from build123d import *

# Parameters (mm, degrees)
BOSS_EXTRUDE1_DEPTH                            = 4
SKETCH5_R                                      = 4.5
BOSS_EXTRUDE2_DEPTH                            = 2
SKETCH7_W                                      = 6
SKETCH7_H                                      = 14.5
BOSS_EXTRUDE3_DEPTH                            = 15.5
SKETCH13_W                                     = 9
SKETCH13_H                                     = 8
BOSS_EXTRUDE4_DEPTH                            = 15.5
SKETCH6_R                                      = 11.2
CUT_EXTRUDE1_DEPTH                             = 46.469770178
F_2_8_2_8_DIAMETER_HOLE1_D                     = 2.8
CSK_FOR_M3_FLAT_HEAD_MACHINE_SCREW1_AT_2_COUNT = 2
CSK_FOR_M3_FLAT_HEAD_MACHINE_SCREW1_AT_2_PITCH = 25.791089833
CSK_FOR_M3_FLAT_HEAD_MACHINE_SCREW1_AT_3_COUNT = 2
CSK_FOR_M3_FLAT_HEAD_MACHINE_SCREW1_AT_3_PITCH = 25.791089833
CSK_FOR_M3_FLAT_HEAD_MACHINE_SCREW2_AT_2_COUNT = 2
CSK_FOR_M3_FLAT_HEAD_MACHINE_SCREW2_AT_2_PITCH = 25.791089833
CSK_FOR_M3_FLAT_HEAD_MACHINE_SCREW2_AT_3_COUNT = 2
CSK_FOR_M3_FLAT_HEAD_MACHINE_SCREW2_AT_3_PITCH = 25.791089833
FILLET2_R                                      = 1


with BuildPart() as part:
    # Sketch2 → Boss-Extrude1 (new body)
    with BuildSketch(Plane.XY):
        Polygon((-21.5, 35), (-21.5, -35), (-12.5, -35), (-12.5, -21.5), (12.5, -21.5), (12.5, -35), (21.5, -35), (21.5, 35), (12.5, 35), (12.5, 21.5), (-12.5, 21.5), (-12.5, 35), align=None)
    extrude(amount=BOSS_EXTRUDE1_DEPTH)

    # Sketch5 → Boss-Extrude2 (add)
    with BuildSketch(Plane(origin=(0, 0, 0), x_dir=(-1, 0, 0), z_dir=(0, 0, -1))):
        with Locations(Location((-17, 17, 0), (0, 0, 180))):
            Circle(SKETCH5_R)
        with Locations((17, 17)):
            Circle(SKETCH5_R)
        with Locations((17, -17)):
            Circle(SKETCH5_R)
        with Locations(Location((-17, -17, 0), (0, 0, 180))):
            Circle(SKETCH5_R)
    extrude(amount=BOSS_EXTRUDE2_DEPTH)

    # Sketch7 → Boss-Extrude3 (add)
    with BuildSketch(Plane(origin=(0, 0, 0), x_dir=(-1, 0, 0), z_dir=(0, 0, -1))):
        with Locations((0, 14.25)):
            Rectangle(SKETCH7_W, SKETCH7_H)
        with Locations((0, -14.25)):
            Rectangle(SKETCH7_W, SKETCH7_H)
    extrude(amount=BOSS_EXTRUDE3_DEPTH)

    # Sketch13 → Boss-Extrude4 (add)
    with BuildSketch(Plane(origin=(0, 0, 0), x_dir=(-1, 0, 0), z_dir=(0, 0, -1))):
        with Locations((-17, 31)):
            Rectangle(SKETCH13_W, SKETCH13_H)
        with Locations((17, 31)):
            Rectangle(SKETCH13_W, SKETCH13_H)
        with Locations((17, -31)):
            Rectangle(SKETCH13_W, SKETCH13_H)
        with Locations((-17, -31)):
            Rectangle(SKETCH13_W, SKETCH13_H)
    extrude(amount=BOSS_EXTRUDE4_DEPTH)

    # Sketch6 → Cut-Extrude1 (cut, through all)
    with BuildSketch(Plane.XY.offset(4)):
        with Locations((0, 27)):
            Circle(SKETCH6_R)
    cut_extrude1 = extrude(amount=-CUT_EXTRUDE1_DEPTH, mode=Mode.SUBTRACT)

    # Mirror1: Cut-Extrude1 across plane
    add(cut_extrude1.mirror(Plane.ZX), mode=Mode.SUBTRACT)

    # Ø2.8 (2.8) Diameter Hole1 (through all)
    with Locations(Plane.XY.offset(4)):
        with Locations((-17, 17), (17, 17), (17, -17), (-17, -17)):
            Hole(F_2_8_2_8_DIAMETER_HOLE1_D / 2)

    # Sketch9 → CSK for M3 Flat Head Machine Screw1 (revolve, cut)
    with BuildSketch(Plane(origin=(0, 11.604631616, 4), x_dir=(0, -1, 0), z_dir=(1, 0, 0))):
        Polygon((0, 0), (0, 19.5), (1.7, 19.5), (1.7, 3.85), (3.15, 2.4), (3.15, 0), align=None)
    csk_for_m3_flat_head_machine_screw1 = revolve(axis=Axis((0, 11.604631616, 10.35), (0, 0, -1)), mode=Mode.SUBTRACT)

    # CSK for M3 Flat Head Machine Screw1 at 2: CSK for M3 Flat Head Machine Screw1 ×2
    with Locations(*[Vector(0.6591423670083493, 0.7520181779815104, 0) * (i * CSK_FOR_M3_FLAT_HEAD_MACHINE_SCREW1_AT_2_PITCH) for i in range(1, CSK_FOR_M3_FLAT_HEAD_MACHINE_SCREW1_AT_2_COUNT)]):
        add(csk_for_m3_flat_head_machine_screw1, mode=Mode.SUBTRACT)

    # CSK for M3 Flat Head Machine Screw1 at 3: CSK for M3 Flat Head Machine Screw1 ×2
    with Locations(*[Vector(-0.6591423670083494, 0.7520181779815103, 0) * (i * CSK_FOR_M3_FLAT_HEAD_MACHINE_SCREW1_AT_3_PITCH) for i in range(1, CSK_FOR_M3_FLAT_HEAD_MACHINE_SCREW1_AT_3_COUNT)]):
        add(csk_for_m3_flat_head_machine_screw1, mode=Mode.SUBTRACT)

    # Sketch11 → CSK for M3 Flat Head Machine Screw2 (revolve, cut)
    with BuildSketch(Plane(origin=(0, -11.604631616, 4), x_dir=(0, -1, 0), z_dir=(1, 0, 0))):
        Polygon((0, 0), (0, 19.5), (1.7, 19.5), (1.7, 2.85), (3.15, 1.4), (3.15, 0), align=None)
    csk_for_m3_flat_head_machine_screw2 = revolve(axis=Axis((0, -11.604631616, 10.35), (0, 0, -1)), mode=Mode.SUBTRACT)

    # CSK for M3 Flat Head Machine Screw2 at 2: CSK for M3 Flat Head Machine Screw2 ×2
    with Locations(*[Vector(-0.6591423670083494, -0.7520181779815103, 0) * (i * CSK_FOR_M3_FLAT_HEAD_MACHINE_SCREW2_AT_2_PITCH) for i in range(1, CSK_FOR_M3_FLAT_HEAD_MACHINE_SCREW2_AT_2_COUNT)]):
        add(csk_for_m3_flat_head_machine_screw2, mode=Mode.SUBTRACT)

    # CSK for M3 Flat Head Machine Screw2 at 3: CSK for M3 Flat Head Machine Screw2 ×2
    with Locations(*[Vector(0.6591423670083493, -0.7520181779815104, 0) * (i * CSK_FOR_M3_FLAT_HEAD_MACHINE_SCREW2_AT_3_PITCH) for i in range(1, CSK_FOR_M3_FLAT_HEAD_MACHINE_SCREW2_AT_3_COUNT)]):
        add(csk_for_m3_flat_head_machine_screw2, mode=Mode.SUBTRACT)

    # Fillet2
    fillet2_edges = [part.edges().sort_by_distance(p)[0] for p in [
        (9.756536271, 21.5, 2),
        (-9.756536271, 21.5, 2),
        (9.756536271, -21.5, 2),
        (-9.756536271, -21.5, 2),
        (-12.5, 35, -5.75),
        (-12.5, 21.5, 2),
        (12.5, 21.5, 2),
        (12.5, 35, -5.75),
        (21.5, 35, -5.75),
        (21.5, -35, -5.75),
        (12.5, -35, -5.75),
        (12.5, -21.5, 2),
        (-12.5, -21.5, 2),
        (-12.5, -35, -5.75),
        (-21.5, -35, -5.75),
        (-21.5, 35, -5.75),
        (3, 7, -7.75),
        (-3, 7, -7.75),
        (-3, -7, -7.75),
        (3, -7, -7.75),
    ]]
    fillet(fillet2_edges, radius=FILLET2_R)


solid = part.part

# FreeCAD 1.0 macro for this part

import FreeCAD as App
import Part
import Sketcher
Q = App.Units.Quantity


def edges_at(feature, points):
    """Names of the edges that pass closest to the given points."""
    edges = feature.Shape.Edges
    near = lambda p: min(range(len(edges)), key=lambda i: edges[i].distToShape(Part.Vertex(*p))[0])
    return sorted({f"Edge{near(p) + 1}" for p in points})


def add_polygon(sketch, points):
    """Adds a closed chain of lines whose ends are joined by coincident constraints."""
    first, n = sketch.GeometryCount, len(points)
    for a, b in zip(points, points[1:] + points[:1]):
        sketch.addGeometry(Part.LineSegment(App.Vector(*a, 0), App.Vector(*b, 0)), False)
    for i in range(n):
        sketch.addConstraint(Sketcher.Constraint("Coincident", first + i, 2, first + (i + 1) % n, 1))

doc = App.newDocument("Part")
body = doc.addObject("PartDesign::Body", "Body")

sketch1 = doc.addObject("Sketcher::SketchObject", "Sketch")
body.addObject(sketch1)
sketch1.AttachmentSupport = (doc.XY_Plane, [""])
sketch1.MapMode = "FlatFace"
add_polygon(sketch1, [(-21.5, 35), (-21.5, -35), (-12.5, -35), (-12.5, -21.5), (12.5, -21.5), (12.5, -35), (21.5, -35), (21.5, 35), (12.5, 35), (12.5, 21.5), (-12.5, 21.5), (-12.5, 35)])
sketch1.addConstraint(Sketcher.Constraint("Vertical", 0))
sketch1.addConstraint(Sketcher.Constraint("Horizontal", 1))
sketch1.addConstraint(Sketcher.Constraint("Vertical", 2))
sketch1.addConstraint(Sketcher.Constraint("Horizontal", 3))
sketch1.addConstraint(Sketcher.Constraint("Vertical", 4))
sketch1.addConstraint(Sketcher.Constraint("Horizontal", 5))
sketch1.addConstraint(Sketcher.Constraint("Vertical", 6))
sketch1.addConstraint(Sketcher.Constraint("Horizontal", 7))
sketch1.addConstraint(Sketcher.Constraint("Vertical", 8))
sketch1.addConstraint(Sketcher.Constraint("Horizontal", 9))
sketch1.addConstraint(Sketcher.Constraint("Vertical", 10))
sketch1.addConstraint(Sketcher.Constraint("Horizontal", 11))
sketch1.addConstraint(Sketcher.Constraint("Symmetric", 0, 2, 6, 2, -1, 1))
sketch1.addConstraint(Sketcher.Constraint("Symmetric", 2, 2, 8, 2, -1, 1))
sketch1.addConstraint(Sketcher.Constraint("Symmetric", 4, 2, 10, 2, -1, 1))
sketch1.addConstraint(Sketcher.Constraint("Symmetric", 1, 2, 4, 2, -2))
sketch1.addConstraint(Sketcher.Constraint("DistanceX", 1, 1, 1, 2, 9.0))
sketch1.addConstraint(Sketcher.Constraint("DistanceX", 3, 1, 3, 2, 25.0))
sketch1.addConstraint(Sketcher.Constraint("DistanceY", 0, 2, 0, 1, 70.0))
sketch1.addConstraint(Sketcher.Constraint("DistanceY", 2, 1, 2, 2, 13.5))
pad1 = doc.addObject("PartDesign::Pad", "Pad")
body.addObject(pad1)
pad1.Profile = sketch1
pad1.Length = 4

sketch2 = doc.addObject("Sketcher::SketchObject", "Sketch001")
body.addObject(sketch2)
sketch2.AttachmentSupport = (doc.XY_Plane, [""])
sketch2.MapMode = "FlatFace"
sketch2.addGeometry(Part.Circle(App.Vector(17, 17, 0), App.Vector(0, 0, 1), 4.5), False)
sketch2.addGeometry(Part.Circle(App.Vector(-17, 17, 0), App.Vector(0, 0, 1), 4.5), False)
sketch2.addGeometry(Part.Circle(App.Vector(-17, -17, 0), App.Vector(0, 0, 1), 4.5), False)
sketch2.addGeometry(Part.Circle(App.Vector(17, -17, 0), App.Vector(0, 0, 1), 4.5), False)
sketch2.addConstraint(Sketcher.Constraint("Equal", 0, 1))
sketch2.addConstraint(Sketcher.Constraint("Equal", 1, 2))
sketch2.addConstraint(Sketcher.Constraint("Equal", 2, 3))
sketch2.addConstraint(Sketcher.Constraint("Symmetric", 0, 3, 2, 3, -1, 1))
sketch2.addConstraint(Sketcher.Constraint("Symmetric", 1, 3, 3, 3, -1, 1))
sketch2.addConstraint(Sketcher.Constraint("Symmetric", 0, 3, 1, 3, -2))
sketch2.addConstraint(Sketcher.Constraint("Diameter", 0, 9.0))
sketch2.addConstraint(Sketcher.Constraint("DistanceX", -1, 1, 0, 3, 17.0))
sketch2.addConstraint(Sketcher.Constraint("DistanceY", -1, 1, 0, 3, 17.0))
pad2 = doc.addObject("PartDesign::Pad", "Pad001")
body.addObject(pad2)
pad2.Profile = sketch2
pad2.Length = 2
pad2.Reversed = True

sketch3 = doc.addObject("Sketcher::SketchObject", "Sketch002")
body.addObject(sketch3)
sketch3.AttachmentSupport = (doc.XY_Plane, [""])
sketch3.MapMode = "FlatFace"
add_polygon(sketch3, [(3, 21.5), (3, 7), (-3, 7), (-3, 21.5)])
add_polygon(sketch3, [(3, -7), (3, -21.5), (-3, -21.5), (-3, -7)])
sketch3.addConstraint(Sketcher.Constraint("Vertical", 0))
sketch3.addConstraint(Sketcher.Constraint("Horizontal", 1))
sketch3.addConstraint(Sketcher.Constraint("Vertical", 2))
sketch3.addConstraint(Sketcher.Constraint("Horizontal", 3))
sketch3.addConstraint(Sketcher.Constraint("Vertical", 4))
sketch3.addConstraint(Sketcher.Constraint("Horizontal", 5))
sketch3.addConstraint(Sketcher.Constraint("Vertical", 6))
sketch3.addConstraint(Sketcher.Constraint("Horizontal", 7))
sketch3.addConstraint(Sketcher.Constraint("Symmetric", 2, 2, 4, 2, -1, 1))
sketch3.addConstraint(Sketcher.Constraint("Symmetric", 0, 2, 6, 2, -1, 1))
sketch3.addConstraint(Sketcher.Constraint("Vertical", 3, 2, 4, 2))
sketch3.addConstraint(Sketcher.Constraint("DistanceX", 1, 2, 1, 1, 6.0))
sketch3.addConstraint(Sketcher.Constraint("DistanceY", 0, 2, 0, 1, 14.5))
sketch3.addConstraint(Sketcher.Constraint("DistanceY", -1, 1, 0, 2, 7.0))
pad3 = doc.addObject("PartDesign::Pad", "Pad002")
body.addObject(pad3)
pad3.Profile = sketch3
pad3.Length = 15.5
pad3.Reversed = True

sketch4 = doc.addObject("Sketcher::SketchObject", "Sketch003")
body.addObject(sketch4)
sketch4.AttachmentSupport = (doc.XY_Plane, [""])
sketch4.MapMode = "FlatFace"
add_polygon(sketch4, [(21.5, 35), (21.5, 27), (12.5, 27), (12.5, 35)])
add_polygon(sketch4, [(-12.5, 35), (-12.5, 27), (-21.5, 27), (-21.5, 35)])
add_polygon(sketch4, [(-12.5, -27), (-12.5, -35), (-21.5, -35), (-21.5, -27)])
add_polygon(sketch4, [(21.5, -27), (21.5, -35), (12.5, -35), (12.5, -27)])
sketch4.addConstraint(Sketcher.Constraint("Vertical", 0))
sketch4.addConstraint(Sketcher.Constraint("Horizontal", 1))
sketch4.addConstraint(Sketcher.Constraint("Vertical", 2))
sketch4.addConstraint(Sketcher.Constraint("Horizontal", 3))
sketch4.addConstraint(Sketcher.Constraint("Vertical", 4))
sketch4.addConstraint(Sketcher.Constraint("Horizontal", 5))
sketch4.addConstraint(Sketcher.Constraint("Vertical", 6))
sketch4.addConstraint(Sketcher.Constraint("Horizontal", 7))
sketch4.addConstraint(Sketcher.Constraint("Vertical", 8))
sketch4.addConstraint(Sketcher.Constraint("Horizontal", 9))
sketch4.addConstraint(Sketcher.Constraint("Vertical", 10))
sketch4.addConstraint(Sketcher.Constraint("Horizontal", 11))
sketch4.addConstraint(Sketcher.Constraint("Vertical", 12))
sketch4.addConstraint(Sketcher.Constraint("Horizontal", 13))
sketch4.addConstraint(Sketcher.Constraint("Vertical", 14))
sketch4.addConstraint(Sketcher.Constraint("Horizontal", 15))
sketch4.addConstraint(Sketcher.Constraint("Symmetric", 2, 2, 8, 2, -1, 1))
sketch4.addConstraint(Sketcher.Constraint("Symmetric", 0, 2, 10, 2, -1, 1))
sketch4.addConstraint(Sketcher.Constraint("Symmetric", 6, 2, 12, 2, -1, 1))
sketch4.addConstraint(Sketcher.Constraint("Symmetric", 4, 2, 14, 2, -1, 1))
sketch4.addConstraint(Sketcher.Constraint("Symmetric", 1, 2, 4, 2, -2))
sketch4.addConstraint(Sketcher.Constraint("Symmetric", 3, 2, 6, 2, -2))
sketch4.addConstraint(Sketcher.Constraint("DistanceX", 1, 2, 1, 1, 9.0))
sketch4.addConstraint(Sketcher.Constraint("DistanceY", 0, 2, 0, 1, 8.0))
sketch4.addConstraint(Sketcher.Constraint("DistanceY", -1, 1, 0, 2, 27.0))
sketch4.addConstraint(Sketcher.Constraint("DistanceX", 4, 2, 1, 2, 25.0))
pad4 = doc.addObject("PartDesign::Pad", "Pad003")
body.addObject(pad4)
pad4.Profile = sketch4
pad4.Length = 15.5
pad4.Reversed = True

sketch5 = doc.addObject("Sketcher::SketchObject", "Sketch004")
body.addObject(sketch5)
sketch5.AttachmentSupport = (doc.XY_Plane, [""])
sketch5.MapMode = "FlatFace"
sketch5.AttachmentOffset = App.Placement(App.Vector(0, 0, 4), App.Rotation())
sketch5.addGeometry(Part.Circle(App.Vector(0, 27, 0), App.Vector(0, 0, 1), 11.2), False)
sketch5.addConstraint(Sketcher.Constraint("PointOnObject", 0, 3, -2))
sketch5.addConstraint(Sketcher.Constraint("Diameter", 0, 22.4))
sketch5.addConstraint(Sketcher.Constraint("DistanceY", -1, 1, 0, 3, 27.0))
pocket1 = doc.addObject("PartDesign::Pocket", "Pocket")
body.addObject(pocket1)
pocket1.Profile = sketch5
pocket1.Type = "ThroughAll"
doc.recompute()

mirrored = doc.addObject("PartDesign::Mirrored", "Mirrored")
body.addObject(mirrored)
mirrored.Originals = [pocket1]
mirrored.MirrorPlane = (doc.XZ_Plane, [""])
body.Tip = mirrored

sketch6 = doc.addObject("Sketcher::SketchObject", "Sketch005")
body.addObject(sketch6)
sketch6.AttachmentSupport = (doc.XY_Plane, [""])
sketch6.MapMode = "FlatFace"
sketch6.AttachmentOffset = App.Placement(App.Vector(0, 0, 4), App.Rotation())
sketch6.addGeometry(Part.Circle(App.Vector(-17, 17, 0), App.Vector(0, 0, 1), 1.4), False)
sketch6.addGeometry(Part.Circle(App.Vector(17, 17, 0), App.Vector(0, 0, 1), 1.4), False)
sketch6.addGeometry(Part.Circle(App.Vector(17, -17, 0), App.Vector(0, 0, 1), 1.4), False)
sketch6.addGeometry(Part.Circle(App.Vector(-17, -17, 0), App.Vector(0, 0, 1), 1.4), False)
sketch6.addConstraint(Sketcher.Constraint("Equal", 0, 1))
sketch6.addConstraint(Sketcher.Constraint("Equal", 1, 2))
sketch6.addConstraint(Sketcher.Constraint("Equal", 2, 3))
sketch6.addConstraint(Sketcher.Constraint("Symmetric", 0, 3, 2, 3, -1, 1))
sketch6.addConstraint(Sketcher.Constraint("Symmetric", 1, 3, 3, 3, -1, 1))
sketch6.addConstraint(Sketcher.Constraint("Symmetric", 0, 3, 1, 3, -2))
sketch6.addConstraint(Sketcher.Constraint("Diameter", 0, 2.8))
sketch6.addConstraint(Sketcher.Constraint("DistanceX", 0, 3, -1, 1, 17.0))
sketch6.addConstraint(Sketcher.Constraint("DistanceY", -1, 1, 0, 3, 17.0))
doc.recompute()
hole = doc.addObject("PartDesign::Hole", "Hole")
body.addObject(hole)
hole.Profile = sketch6
hole.ThreadType = "None"
hole.Diameter = 2.8
hole.DepthType = "ThroughAll"

sketch7 = doc.addObject("Sketcher::SketchObject", "Sketch006")
body.addObject(sketch7)
sketch7.AttachmentSupport = (doc.YZ_Plane, [""])
sketch7.MapMode = "FlatFace"
add_polygon(sketch7, [(11.604632, -15.5), (11.604632, 4), (8.454632, 4), (8.454632, 1.6), (9.904632, 0.15), (9.904632, -15.5)])
sketch7.addGeometry(Part.LineSegment(App.Vector(11.604632, 4, 0), App.Vector(11.604632, -15.5, 0)), True)
sketch7.addConstraint(Sketcher.Constraint("Vertical", 0))
sketch7.addConstraint(Sketcher.Constraint("Horizontal", 1))
sketch7.addConstraint(Sketcher.Constraint("Vertical", 2))
sketch7.addConstraint(Sketcher.Constraint("Vertical", 4))
sketch7.addConstraint(Sketcher.Constraint("Horizontal", 5))
sketch7.addConstraint(Sketcher.Constraint("Vertical", 6))
sketch7.addConstraint(Sketcher.Constraint("Coincident", 6, 1, 0, 2))
sketch7.addConstraint(Sketcher.Constraint("Horizontal", 4, 2, 6, 2))
sketch7.addConstraint(Sketcher.Constraint("Angle", 3, Q("-45 deg")))
sketch7.addConstraint(Sketcher.Constraint("DistanceX", 5, 1, 5, 2, 1.7))
sketch7.addConstraint(Sketcher.Constraint("DistanceY", 0, 1, 0, 2, 19.5))
sketch7.addConstraint(Sketcher.Constraint("DistanceY", 2, 2, 2, 1, 2.4))
sketch7.addConstraint(Sketcher.Constraint("DistanceY", -1, 1, 0, 2, 4.0))
sketch7.addConstraint(Sketcher.Constraint("DistanceX", 1, 2, 1, 1, 3.15))
sketch7.addConstraint(Sketcher.Constraint("DistanceX", -1, 1, 0, 2, 11.604632))
groove = doc.addObject("PartDesign::Groove", "Groove")
body.addObject(groove)
groove.Profile = sketch7
groove.ReferenceAxis = (sketch7, ["Axis0"])
groove.Angle = 360
doc.recompute()

datumline = doc.addObject("PartDesign::Line", "DatumLine")
body.addObject(datumline)
datumline.Placement = App.Placement(App.Vector(0, 0, 0), App.Rotation(App.Vector(0, 0, 1), App.Vector(0.659142367, 0.752018178, 0)))
linearpattern = doc.addObject("PartDesign::LinearPattern", "LinearPattern")
body.addObject(linearpattern)
linearpattern.Originals = [groove]
linearpattern.Direction = (datumline, [""])
linearpattern.Mode = "offset"
linearpattern.Offset = 25.79109
linearpattern.Occurrences = 2
body.Tip = linearpattern
doc.recompute()

datumline2 = doc.addObject("PartDesign::Line", "DatumLine001")
body.addObject(datumline2)
datumline2.Placement = App.Placement(App.Vector(0, 0, 0), App.Rotation(App.Vector(0, 0, 1), App.Vector(-0.659142367, 0.752018178, 0)))
linearpattern2 = doc.addObject("PartDesign::LinearPattern", "LinearPattern001")
body.addObject(linearpattern2)
linearpattern2.Originals = [groove]
linearpattern2.Direction = (datumline2, [""])
linearpattern2.Mode = "offset"
linearpattern2.Offset = 25.79109
linearpattern2.Occurrences = 2
body.Tip = linearpattern2

sketch8 = doc.addObject("Sketcher::SketchObject", "Sketch007")
body.addObject(sketch8)
sketch8.AttachmentSupport = (doc.YZ_Plane, [""])
sketch8.MapMode = "FlatFace"
add_polygon(sketch8, [(-11.604632, -15.5), (-11.604632, 4), (-14.754632, 4), (-14.754632, 2.6), (-13.304632, 1.15), (-13.304632, -15.5)])
sketch8.addGeometry(Part.LineSegment(App.Vector(-11.604632, 4, 0), App.Vector(-11.604632, -15.5, 0)), True)
sketch8.addConstraint(Sketcher.Constraint("Vertical", 0))
sketch8.addConstraint(Sketcher.Constraint("Horizontal", 1))
sketch8.addConstraint(Sketcher.Constraint("Vertical", 2))
sketch8.addConstraint(Sketcher.Constraint("Vertical", 4))
sketch8.addConstraint(Sketcher.Constraint("Horizontal", 5))
sketch8.addConstraint(Sketcher.Constraint("Vertical", 6))
sketch8.addConstraint(Sketcher.Constraint("Coincident", 6, 1, 0, 2))
sketch8.addConstraint(Sketcher.Constraint("Horizontal", 4, 2, 6, 2))
sketch8.addConstraint(Sketcher.Constraint("Angle", 3, Q("-45 deg")))
sketch8.addConstraint(Sketcher.Constraint("DistanceX", 5, 1, 5, 2, 1.7))
sketch8.addConstraint(Sketcher.Constraint("DistanceY", 0, 1, 0, 2, 19.5))
sketch8.addConstraint(Sketcher.Constraint("DistanceY", 2, 2, 2, 1, 1.4))
sketch8.addConstraint(Sketcher.Constraint("DistanceY", -1, 1, 0, 2, 4.0))
sketch8.addConstraint(Sketcher.Constraint("DistanceX", 1, 2, 1, 1, 3.15))
sketch8.addConstraint(Sketcher.Constraint("DistanceX", 0, 2, -1, 1, 11.604632))
groove2 = doc.addObject("PartDesign::Groove", "Groove001")
body.addObject(groove2)
groove2.Profile = sketch8
groove2.ReferenceAxis = (sketch8, ["Axis0"])
groove2.Angle = 360
doc.recompute()

datumline3 = doc.addObject("PartDesign::Line", "DatumLine002")
body.addObject(datumline3)
datumline3.Placement = App.Placement(App.Vector(0, 0, 0), App.Rotation(App.Vector(0, 0, 1), App.Vector(-0.659142367, -0.752018178, 0)))
linearpattern3 = doc.addObject("PartDesign::LinearPattern", "LinearPattern002")
body.addObject(linearpattern3)
linearpattern3.Originals = [groove2]
linearpattern3.Direction = (datumline3, [""])
linearpattern3.Mode = "offset"
linearpattern3.Offset = 25.79109
linearpattern3.Occurrences = 2
body.Tip = linearpattern3
doc.recompute()

datumline4 = doc.addObject("PartDesign::Line", "DatumLine003")
body.addObject(datumline4)
datumline4.Placement = App.Placement(App.Vector(0, 0, 0), App.Rotation(App.Vector(0, 0, 1), App.Vector(0.659142367, -0.752018178, 0)))
linearpattern4 = doc.addObject("PartDesign::LinearPattern", "LinearPattern003")
body.addObject(linearpattern4)
linearpattern4.Originals = [groove2]
linearpattern4.Direction = (datumline4, [""])
linearpattern4.Mode = "offset"
linearpattern4.Offset = 25.79109
linearpattern4.Occurrences = 2
body.Tip = linearpattern4
doc.recompute()

fillet = doc.addObject("PartDesign::Fillet", "Fillet")
body.addObject(fillet)
fillet.Base = (linearpattern4, edges_at(linearpattern4, [
    (9.757, 21.5, 2),
    (-9.757, 21.5, 2),
    (9.757, -21.5, 2),
    (-9.757, -21.5, 2),
    (-12.5, 35, -5.75),
    (-12.5, 21.5, 2),
    (12.5, 21.5, 2),
    (12.5, 35, -5.75),
    (21.5, 35, -5.75),
    (21.5, -35, -5.75),
    (12.5, -35, -5.75),
    (12.5, -21.5, 2),
    (-12.5, -21.5, 2),
    (-12.5, -35, -5.75),
    (-21.5, -35, -5.75),
    (-21.5, 35, -5.75),
    (3, 7, -7.75),
    (-3, 7, -7.75),
    (-3, -7, -7.75),
    (3, -7, -7.75),
]))
fillet.Radius = 1

doc.recompute()
